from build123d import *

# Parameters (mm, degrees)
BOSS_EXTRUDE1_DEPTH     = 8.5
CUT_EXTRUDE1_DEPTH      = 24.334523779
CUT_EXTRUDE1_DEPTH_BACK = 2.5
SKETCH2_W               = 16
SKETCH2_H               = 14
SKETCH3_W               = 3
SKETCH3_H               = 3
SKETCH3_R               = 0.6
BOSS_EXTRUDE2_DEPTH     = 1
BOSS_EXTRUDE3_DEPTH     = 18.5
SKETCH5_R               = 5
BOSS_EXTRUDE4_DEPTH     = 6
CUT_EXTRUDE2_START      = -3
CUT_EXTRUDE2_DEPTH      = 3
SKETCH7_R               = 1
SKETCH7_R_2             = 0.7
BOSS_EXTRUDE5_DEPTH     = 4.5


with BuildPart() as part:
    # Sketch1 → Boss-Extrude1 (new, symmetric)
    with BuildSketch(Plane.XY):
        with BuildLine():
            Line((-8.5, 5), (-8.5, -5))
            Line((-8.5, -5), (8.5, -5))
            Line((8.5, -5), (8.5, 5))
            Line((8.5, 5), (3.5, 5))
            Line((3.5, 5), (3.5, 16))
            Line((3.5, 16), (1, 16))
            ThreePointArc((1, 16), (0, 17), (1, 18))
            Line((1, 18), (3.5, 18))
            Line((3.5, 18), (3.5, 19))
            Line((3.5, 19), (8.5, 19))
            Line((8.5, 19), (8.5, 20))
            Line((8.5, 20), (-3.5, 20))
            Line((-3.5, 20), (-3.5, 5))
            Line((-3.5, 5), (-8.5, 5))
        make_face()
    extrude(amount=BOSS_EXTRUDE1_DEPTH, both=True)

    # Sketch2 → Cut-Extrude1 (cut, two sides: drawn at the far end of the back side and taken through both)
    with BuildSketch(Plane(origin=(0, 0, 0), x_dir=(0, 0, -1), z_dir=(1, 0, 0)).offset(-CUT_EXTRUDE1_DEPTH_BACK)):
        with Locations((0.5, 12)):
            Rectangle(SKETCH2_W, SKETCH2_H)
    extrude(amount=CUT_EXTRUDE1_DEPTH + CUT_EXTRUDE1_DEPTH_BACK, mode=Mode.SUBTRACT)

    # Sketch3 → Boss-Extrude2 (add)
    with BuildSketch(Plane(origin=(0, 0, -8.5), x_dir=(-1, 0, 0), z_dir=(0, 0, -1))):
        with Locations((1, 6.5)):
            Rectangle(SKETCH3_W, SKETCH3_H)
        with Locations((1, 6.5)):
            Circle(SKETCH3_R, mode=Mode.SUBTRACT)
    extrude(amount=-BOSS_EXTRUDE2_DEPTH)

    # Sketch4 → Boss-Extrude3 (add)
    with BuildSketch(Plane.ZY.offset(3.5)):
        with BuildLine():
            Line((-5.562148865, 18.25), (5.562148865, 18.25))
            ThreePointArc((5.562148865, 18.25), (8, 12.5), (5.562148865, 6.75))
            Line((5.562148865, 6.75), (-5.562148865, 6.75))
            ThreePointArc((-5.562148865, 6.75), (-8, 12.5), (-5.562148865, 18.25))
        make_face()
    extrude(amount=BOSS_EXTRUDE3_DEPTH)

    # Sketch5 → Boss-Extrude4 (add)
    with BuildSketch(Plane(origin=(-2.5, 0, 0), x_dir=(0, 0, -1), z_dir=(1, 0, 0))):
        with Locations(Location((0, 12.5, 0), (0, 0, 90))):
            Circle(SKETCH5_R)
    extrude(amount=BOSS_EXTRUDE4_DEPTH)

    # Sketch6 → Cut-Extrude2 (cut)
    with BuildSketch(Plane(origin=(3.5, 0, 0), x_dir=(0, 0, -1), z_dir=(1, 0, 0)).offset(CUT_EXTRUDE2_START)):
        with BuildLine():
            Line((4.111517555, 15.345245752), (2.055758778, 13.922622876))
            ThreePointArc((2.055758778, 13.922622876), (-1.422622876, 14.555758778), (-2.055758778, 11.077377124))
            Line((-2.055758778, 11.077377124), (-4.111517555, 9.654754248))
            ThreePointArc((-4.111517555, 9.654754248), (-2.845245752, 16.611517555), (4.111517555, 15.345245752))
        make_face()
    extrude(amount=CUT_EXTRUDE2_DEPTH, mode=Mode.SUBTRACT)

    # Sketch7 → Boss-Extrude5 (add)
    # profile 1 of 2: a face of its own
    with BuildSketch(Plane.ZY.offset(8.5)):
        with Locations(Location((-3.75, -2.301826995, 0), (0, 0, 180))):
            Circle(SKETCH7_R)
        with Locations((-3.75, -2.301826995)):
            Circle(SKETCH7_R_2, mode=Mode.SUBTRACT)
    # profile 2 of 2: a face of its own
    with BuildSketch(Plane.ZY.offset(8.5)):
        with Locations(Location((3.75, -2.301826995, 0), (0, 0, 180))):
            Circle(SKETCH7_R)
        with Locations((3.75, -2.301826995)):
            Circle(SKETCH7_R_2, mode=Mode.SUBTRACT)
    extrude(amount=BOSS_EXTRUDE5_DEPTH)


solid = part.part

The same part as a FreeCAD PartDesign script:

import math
import FreeCAD as App
import Part
import Sketcher
from FreeCAD import Vector
Q = App.Units.Quantity


def add_polygon(sketch, points):
    """Adds a closed chain of lines whose ends are joined by coincident constraints."""
    first, n = sketch.GeometryCount, len(points)
    for a, b in zip(points, points[1:] + points[:1]):
        sketch.addGeometry(Part.LineSegment(App.Vector(*a, 0), App.Vector(*b, 0)), False)
    for i in range(n):
        sketch.addConstraint(Sketcher.Constraint("Coincident", first + i, 2, first + (i + 1) % n, 1))

doc = App.newDocument("Part")
body = doc.addObject("PartDesign::Body", "Body")

sketch1 = body.newObject("Sketcher::SketchObject", "Sketch")
sketch1.AttachmentSupport = (doc.getObject("XY_Plane"), [""])
sketch1.MapMode = "FlatFace"
sketch1.addGeometry(Part.LineSegment(Vector(-8.5, 5, 0), Vector(-8.5, -5, 0)), False)
sketch1.addGeometry(Part.LineSegment(Vector(-8.5, -5, 0), Vector(8.5, -5, 0)), False)
sketch1.addGeometry(Part.LineSegment(Vector(8.5, -5, 0), Vector(8.5, 5, 0)), False)
sketch1.addGeometry(Part.LineSegment(Vector(8.5, 5, 0), Vector(3.5, 5, 0)), False)
sketch1.addGeometry(Part.LineSegment(Vector(3.5, 5, 0), Vector(3.5, 16, 0)), False)
sketch1.addGeometry(Part.LineSegment(Vector(3.5, 16, 0), Vector(1, 16, 0)), False)
sketch1.addGeometry(Part.ArcOfCircle(Part.Circle(Vector(1, 17, 0), Vector(0, 0, 1), 1), math.radians(90), math.radians(270)), False)
sketch1.addGeometry(Part.LineSegment(Vector(1, 18, 0), Vector(3.5, 18, 0)), False)
sketch1.addGeometry(Part.LineSegment(Vector(3.5, 18, 0), Vector(3.5, 19, 0)), False)
sketch1.addGeometry(Part.LineSegment(Vector(3.5, 19, 0), Vector(8.5, 19, 0)), False)
sketch1.addGeometry(Part.LineSegment(Vector(8.5, 19, 0), Vector(8.5, 20, 0)), False)
sketch1.addGeometry(Part.LineSegment(Vector(8.5, 20, 0), Vector(-3.5, 20, 0)), False)
sketch1.addGeometry(Part.LineSegment(Vector(-3.5, 20, 0), Vector(-3.5, 5, 0)), False)
sketch1.addGeometry(Part.LineSegment(Vector(-3.5, 5, 0), Vector(-8.5, 5, 0)), False)
sketch1.addConstraint(Sketcher.Constraint("Coincident", 0, 2, 1, 1))
sketch1.addConstraint(Sketcher.Constraint("Coincident", 1, 2, 2, 1))
sketch1.addConstraint(Sketcher.Constraint("Coincident", 2, 2, 3, 1))
sketch1.addConstraint(Sketcher.Constraint("Coincident", 3, 2, 4, 1))
sketch1.addConstraint(Sketcher.Constraint("Coincident", 4, 2, 5, 1))
sketch1.addConstraint(Sketcher.Constraint("Tangent", 5, 2, 6, 2))
sketch1.addConstraint(Sketcher.Constraint("Tangent", 6, 1, 7, 1))
sketch1.addConstraint(Sketcher.Constraint("Coincident", 7, 2, 8, 1))
sketch1.addConstraint(Sketcher.Constraint("Coincident", 8, 2, 9, 1))
sketch1.addConstraint(Sketcher.Constraint("Coincident", 9, 2, 10, 1))
sketch1.addConstraint(Sketcher.Constraint("Coincident", 10, 2, 11, 1))
sketch1.addConstraint(Sketcher.Constraint("Coincident", 11, 2, 12, 1))
sketch1.addConstraint(Sketcher.Constraint("Coincident", 12, 2, 13, 1))
sketch1.addConstraint(Sketcher.Constraint("Coincident", 13, 2, 0, 1))
sketch1.addConstraint(Sketcher.Constraint("Vertical", 0))
sketch1.addConstraint(Sketcher.Constraint("Horizontal", 1))
sketch1.addConstraint(Sketcher.Constraint("Vertical", 2))
sketch1.addConstraint(Sketcher.Constraint("Horizontal", 3))
sketch1.addConstraint(Sketcher.Constraint("Vertical", 4))
sketch1.addConstraint(Sketcher.Constraint("Horizontal", 5))
sketch1.addConstraint(Sketcher.Constraint("Horizontal", 7))
sketch1.addConstraint(Sketcher.Constraint("Vertical", 8))
sketch1.addConstraint(Sketcher.Constraint("Horizontal", 9))
sketch1.addConstraint(Sketcher.Constraint("Vertical", 10))
sketch1.addConstraint(Sketcher.Constraint("Horizontal", 11))
sketch1.addConstraint(Sketcher.Constraint("Vertical", 12))
sketch1.addConstraint(Sketcher.Constraint("Horizontal", 13))
sketch1.addConstraint(Sketcher.Constraint("Symmetric", 0, 2, 2, 2, -1, 1))
sketch1.addConstraint(Sketcher.Constraint("Symmetric", 3, 2, 12, 2, -2))
sketch1.addConstraint(Sketcher.Constraint("Vertical", 4, 2, 7, 2))
sketch1.addConstraint(Sketcher.Constraint("Vertical", 2, 2, 9, 2))
sketch1.addConstraint(Sketcher.Constraint("Equal", 8, 10))
sketch1.addConstraint(Sketcher.Constraint("Radius", 6, Q("1 mm")))
sketch1.addConstraint(Sketcher.Constraint("DistanceX", 1, 1, 1, 2, Q("17 mm")))
sketch1.addConstraint(Sketcher.Constraint("DistanceX", 3, 2, 3, 1, Q("5 mm")))
sketch1.addConstraint(Sketcher.Constraint("DistanceY", 0, 2, 0, 1, Q("10 mm")))
sketch1.addConstraint(Sketcher.Constraint("DistanceY", 4, 1, 4, 2, Q("11 mm")))
sketch1.addConstraint(Sketcher.Constraint("DistanceY", 8, 1, 8, 2, Q("1 mm")))
sketch1.addConstraint(Sketcher.Constraint("DistanceX", 5, 2, 5, 1, Q("2.5 mm")))
pad1 = body.newObject("PartDesign::Pad", "Pad")
pad1.Profile = sketch1
pad1.Length = 17
pad1.Midplane = True

sketch2 = body.newObject("Sketcher::SketchObject", "Sketch001")
sketch2.AttachmentSupport = (doc.getObject("YZ_Plane"), [""])
sketch2.MapMode = "FlatFace"
add_polygon(sketch2, [(19, 8), (5, 8), (5, -8), (19, -8)])
sketch2.addConstraint(Sketcher.Constraint("Horizontal", 0))
sketch2.addConstraint(Sketcher.Constraint("Vertical", 1))
sketch2.addConstraint(Sketcher.Constraint("Horizontal", 2))
sketch2.addConstraint(Sketcher.Constraint("Vertical", 3))
sketch2.addConstraint(Sketcher.Constraint("DistanceX", 0, 2, 0, 1, Q("14 mm")))
sketch2.addConstraint(Sketcher.Constraint("DistanceY", 1, 2, 1, 1, Q("16 mm")))
sketch2.addConstraint(Sketcher.Constraint("DistanceX", -1, 1, 0, 2, Q("5 mm")))
sketch2.addConstraint(Sketcher.Constraint("DistanceY", -1, 1, 0, 2, Q("7.5 mm")))
pocket1 = body.newObject("PartDesign::Pocket", "Pocket")
pocket1.Profile = sketch2
pocket1.Type = "TwoLengths"
pocket1.Length = 24.334524
pocket1.Length2 = 2.5
pocket1.Reversed = True

sketch3 = body.newObject("Sketcher::SketchObject", "Sketch002")
sketch3.AttachmentSupport = (doc.getObject("XY_Plane"), [""])
sketch3.MapMode = "FlatFace"
sketch3.AttachmentOffset = App.Placement(Vector(0, 0, -8.5), App.Rotation())
add_polygon(sketch3, [(0.5, 8), (0.5, 5), (-2.5, 5), (-2.5, 8)])
sketch3.addGeometry(Part.Circle(Vector(-1, 6.5, 0), Vector(0, 0, 1), 0.6), False)
sketch3.addConstraint(Sketcher.Constraint("Vertical", 0))
sketch3.addConstraint(Sketcher.Constraint("Horizontal", 1))
sketch3.addConstraint(Sketcher.Constraint("Vertical", 2))
sketch3.addConstraint(Sketcher.Constraint("Horizontal", 3))
sketch3.addConstraint(Sketcher.Constraint("Equal", 3, 0))
sketch3.addConstraint(Sketcher.Constraint("Diameter", 4, Q("1.2 mm")))
sketch3.addConstraint(Sketcher.Constraint("DistanceX", 1, 2, 1, 1, Q("3 mm")))
sketch3.addConstraint(Sketcher.Constraint("DistanceX", 4, 3, -1, 1, Q("1 mm")))
sketch3.addConstraint(Sketcher.Constraint("DistanceY", -1, 1, 0, 2, Q("5 mm")))
sketch3.addConstraint(Sketcher.Constraint("DistanceY", -1, 1, 4, 3, Q("6.5 mm")))
sketch3.addConstraint(Sketcher.Constraint("DistanceX", -1, 1, 0, 2, Q("0.5 mm")))
pad2 = body.newObject("PartDesign::Pad", "Pad001")
pad2.Profile = sketch3
pad2.Length = 1

sketch4 = body.newObject("Sketcher::SketchObject", "Sketch003")
sketch4.AttachmentSupport = (doc.getObject("YZ_Plane"), [""])
sketch4.MapMode = "FlatFace"
sketch4.AttachmentOffset = App.Placement(Vector(0, 0, -3.5), App.Rotation())
sketch4.addGeometry(Part.LineSegment(Vector(18, 6, 0), Vector(18, -6, 0)), False)
sketch4.addGeometry(Part.ArcOfCircle(Part.Circle(Vector(12, 0, 0), Vector(0, 0, 1), 8), math.radians(-136), math.radians(-44)), False)
sketch4.addGeometry(Part.LineSegment(Vector(7, -6, 0), Vector(7, 6, 0)), False)
sketch4.addGeometry(Part.ArcOfCircle(Part.Circle(Vector(12, 0, 0), Vector(0, 0, 1), 8), math.radians(44), math.radians(136)), False)
sketch4.addConstraint(Sketcher.Constraint("Coincident", 0, 2, 1, 2))
sketch4.addConstraint(Sketcher.Constraint("Coincident", 1, 1, 2, 1))
sketch4.addConstraint(Sketcher.Constraint("Coincident", 2, 2, 3, 2))
sketch4.addConstraint(Sketcher.Constraint("Coincident", 3, 1, 0, 1))
sketch4.addConstraint(Sketcher.Constraint("Vertical", 0))
sketch4.addConstraint(Sketcher.Constraint("Vertical", 2))
sketch4.addConstraint(Sketcher.Constraint("Coincident", 3, 3, 1, 3))
sketch4.addConstraint(Sketcher.Constraint("Equal", 1, 3))
sketch4.addConstraint(Sketcher.Constraint("PointOnObject", 1, 3, -1))
sketch4.addConstraint(Sketcher.Constraint("Horizontal", 0, 2, 1, 1))
sketch4.addConstraint(Sketcher.Constraint("Radius", 1, Q("8 mm")))
sketch4.addConstraint(Sketcher.Constraint("DistanceX", -1, 1, 1, 3, Q("12.5 mm")))
sketch4.addConstraint(Sketcher.Constraint("DistanceX", 1, 1, 0, 2, Q("11.5 mm")))
pad3 = body.newObject("PartDesign::Pad", "Pad002")
pad3.Profile = sketch4
pad3.Length = 18.5
pad3.Reversed = True

sketch5 = body.newObject("Sketcher::SketchObject", "Sketch004")
sketch5.AttachmentSupport = (doc.getObject("YZ_Plane"), [""])
sketch5.MapMode = "FlatFace"
sketch5.AttachmentOffset = App.Placement(Vector(0, 0, -2.5), App.Rotation())
sketch5.addGeometry(Part.Circle(Vector(12, 0, 0), Vector(0, 0, 1), 5), False)
sketch5.addConstraint(Sketcher.Constraint("PointOnObject", 0, 3, -1))
sketch5.addConstraint(Sketcher.Constraint("Diameter", 0, Q("10 mm")))
sketch5.addConstraint(Sketcher.Constraint("DistanceX", -1, 1, 0, 3, Q("12.5 mm")))
pad4 = body.newObject("PartDesign::Pad", "Pad003")
pad4.Profile = sketch5
pad4.Length = 6

sketch6 = body.newObject("Sketcher::SketchObject", "Sketch005")
sketch6.AttachmentSupport = (doc.getObject("YZ_Plane"), [""])
sketch6.MapMode = "FlatFace"
sketch6.AttachmentOffset = App.Placement(Vector(0, 0, 0.5), App.Rotation())
sketch6.addGeometry(Part.LineSegment(Vector(13.9, -2.1, 0), Vector(15.3, -4.1, 0)), False)
sketch6.addGeometry(Part.ArcOfCircle(Part.Circle(Vector(12.5, 0, 0), Vector(0, 0, 1), 5), math.radians(-55), math.radians(125)), False)
sketch6.addGeometry(Part.LineSegment(Vector(9.7, 4.1, 0), Vector(11.1, 2.1, 0)), False)
sketch6.addGeometry(Part.ArcOfCircle(Part.Circle(Vector(12.5, 0, 0), Vector(0, 0, 1), 2.5), math.radians(-55), math.radians(125)), False)
sketch6.addConstraint(Sketcher.Constraint("Coincident", 0, 2, 1, 1))
sketch6.addConstraint(Sketcher.Constraint("Coincident", 1, 2, 2, 1))
sketch6.addConstraint(Sketcher.Constraint("Coincident", 2, 2, 3, 2))
sketch6.addConstraint(Sketcher.Constraint("Coincident", 3, 1, 0, 1))
sketch6.addConstraint(Sketcher.Constraint("Coincident", 3, 3, 1, 3))
sketch6.addConstraint(Sketcher.Constraint("PointOnObject", 1, 3, -1))
sketch6.addConstraint(Sketcher.Constraint("Parallel", 0, 2))
sketch6.addConstraint(Sketcher.Constraint("Radius", 1, Q("5 mm")))
sketch6.addConstraint(Sketcher.Constraint("Radius", 3, Q("2.5 mm")))
sketch6.addConstraint(Sketcher.Constraint("DistanceX", -1, 1, 1, 3, Q("12.5 mm")))
sketch6.addConstraint(Sketcher.Constraint("DistanceY", -1, 1, 2, 2, Q("2.055759 mm")))
sketch6.addConstraint(Sketcher.Constraint("DistanceY", 3, 1, -1, 1, Q("2.055759 mm")))
sketch6.addConstraint(Sketcher.Constraint("DistanceX", 1, 2, 0, 2, Q("5.690492 mm")))
pocket2 = body.newObject("PartDesign::Pocket", "Pocket001")
pocket2.Profile = sketch6
pocket2.Length = 3
pocket2.Reversed = True

sketch7 = body.newObject("Sketcher::SketchObject", "Sketch006")
sketch7.AttachmentSupport = (doc.getObject("YZ_Plane"), [""])
sketch7.MapMode = "FlatFace"
sketch7.AttachmentOffset = App.Placement(Vector(0, 0, -8.5), App.Rotation())
sketch7.addGeometry(Part.Circle(Vector(-2.3, -3.8, 0), Vector(0, 0, 1), 1), False)
sketch7.addGeometry(Part.Circle(Vector(-2.3, -3.8, 0), Vector(0, 0, 1), 0.7), False)
sketch7.addGeometry(Part.Circle(Vector(-2.3, 3.8, 0), Vector(0, 0, 1), 1), False)
sketch7.addGeometry(Part.Circle(Vector(-2.3, 3.8, 0), Vector(0, 0, 1), 0.7), False)
sketch7.addConstraint(Sketcher.Constraint("Coincident", 1, 3, 0, 3))
sketch7.addConstraint(Sketcher.Constraint("Coincident", 3, 3, 2, 3))
sketch7.addConstraint(Sketcher.Constraint("Equal", 0, 2))
sketch7.addConstraint(Sketcher.Constraint("Equal", 1, 3))
sketch7.addConstraint(Sketcher.Constraint("Symmetric", 0, 3, 2, 3, -1))
sketch7.addConstraint(Sketcher.Constraint("Diameter", 0, Q("2 mm")))
sketch7.addConstraint(Sketcher.Constraint("Diameter", 1, Q("1.4 mm")))
sketch7.addConstraint(Sketcher.Constraint("DistanceY", 0, 3, 2, 3, Q("7.5 mm")))
sketch7.addConstraint(Sketcher.Constraint("DistanceX", 0, 3, -1, 1, Q("2.301827 mm")))
pad5 = body.newObject("PartDesign::Pad", "Pad004")
pad5.Profile = sketch7
pad5.Length = 4.5
pad5.Reversed = True

doc.recompute()
